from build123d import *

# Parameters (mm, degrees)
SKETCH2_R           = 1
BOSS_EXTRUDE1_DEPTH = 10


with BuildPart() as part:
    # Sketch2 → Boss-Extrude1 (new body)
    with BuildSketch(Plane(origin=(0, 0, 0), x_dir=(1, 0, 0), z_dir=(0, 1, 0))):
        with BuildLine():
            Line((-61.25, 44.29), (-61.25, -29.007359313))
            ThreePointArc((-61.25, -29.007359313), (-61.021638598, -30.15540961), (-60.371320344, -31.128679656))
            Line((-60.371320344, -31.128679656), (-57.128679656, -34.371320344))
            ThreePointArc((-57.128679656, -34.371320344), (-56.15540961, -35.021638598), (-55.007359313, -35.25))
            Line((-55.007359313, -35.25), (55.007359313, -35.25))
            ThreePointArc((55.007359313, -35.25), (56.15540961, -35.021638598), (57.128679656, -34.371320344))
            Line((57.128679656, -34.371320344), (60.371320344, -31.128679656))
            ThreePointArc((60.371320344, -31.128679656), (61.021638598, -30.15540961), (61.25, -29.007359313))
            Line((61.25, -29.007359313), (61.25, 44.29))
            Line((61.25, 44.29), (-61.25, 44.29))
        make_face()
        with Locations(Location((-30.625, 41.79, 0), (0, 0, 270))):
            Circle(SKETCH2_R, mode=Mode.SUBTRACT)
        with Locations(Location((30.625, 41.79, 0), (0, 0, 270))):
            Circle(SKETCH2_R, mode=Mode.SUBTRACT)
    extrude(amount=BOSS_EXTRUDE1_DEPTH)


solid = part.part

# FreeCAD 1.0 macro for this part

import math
import FreeCAD as App
import Part
import Sketcher
Q = App.Units.Quantity

doc = App.newDocument("Part")
body = doc.addObject("PartDesign::Body", "Body")

# Sketch on XZ plane
sketch1 = body.newObject("Sketcher::SketchObject", "Sketch")
sketch1.AttachmentSupport = (doc.getObject("XZ_Plane"), [""])
sketch1.MapMode = "FlatFace"
sketch1.addGeometry([
    Part.LineSegment(App.Vector(-61.2, -44.3, 0), App.Vector(-61.2, 29, 0)),  # 0
    Part.ArcOfCircle(Part.Circle(App.Vector(-58.3, 29, 0), App.Vector(0, 0, 1), 3), math.radians(135), math.radians(180)),  # 1
    Part.LineSegment(App.Vector(-60.4, 31.1, 0), App.Vector(-57.1, 34.4, 0)),  # 2
    Part.ArcOfCircle(Part.Circle(App.Vector(-55, 32.3, 0), App.Vector(0, 0, 1), 3), math.radians(90), math.radians(135)),  # 3
    Part.LineSegment(App.Vector(-55, 35.2, 0), App.Vector(55, 35.2, 0)),  # 4
    Part.ArcOfCircle(Part.Circle(App.Vector(55, 32.3, 0), App.Vector(0, 0, 1), 3), math.radians(45), math.radians(90)),  # 5
    Part.LineSegment(App.Vector(57.1, 34.4, 0), App.Vector(60.4, 31.1, 0)),  # 6
    Part.ArcOfCircle(Part.Circle(App.Vector(58.3, 29, 0), App.Vector(0, 0, 1), 3), math.radians(0), math.radians(45)),  # 7
    Part.LineSegment(App.Vector(61.2, 29, 0), App.Vector(61.2, -44.3, 0)),  # 8
    Part.LineSegment(App.Vector(61.2, -44.3, 0), App.Vector(-61.2, -44.3, 0)),  # 9
    Part.Circle(App.Vector(-30.6, -41.8, 0), App.Vector(0, 0, 1), 1),  # 10
    Part.Circle(App.Vector(30.6, -41.8, 0), App.Vector(0, 0, 1), 1),  # 11
], False)
sketch1.addConstraint([
    Sketcher.Constraint("Tangent", 0, 2, 1, 2),
    Sketcher.Constraint("Tangent", 1, 1, 2, 1),
    Sketcher.Constraint("Tangent", 2, 2, 3, 2),
    Sketcher.Constraint("Tangent", 3, 1, 4, 1),
    Sketcher.Constraint("Tangent", 4, 2, 5, 2),
    Sketcher.Constraint("Tangent", 5, 1, 6, 1),
    Sketcher.Constraint("Tangent", 6, 2, 7, 2),
    Sketcher.Constraint("Tangent", 7, 1, 8, 1),
    Sketcher.Constraint("Coincident", 8, 2, 9, 1),
    Sketcher.Constraint("Coincident", 9, 2, 0, 1),
    Sketcher.Constraint("Vertical", 0),
    Sketcher.Constraint("Horizontal", 4),
    Sketcher.Constraint("Vertical", 8),
    Sketcher.Constraint("Horizontal", 9),
    Sketcher.Constraint("Equal", 1, 3),
    Sketcher.Constraint("Equal", 3, 5),
    Sketcher.Constraint("Equal", 5, 7),
    Sketcher.Constraint("Equal", 10, 11),
    Sketcher.Constraint("Symmetric", 1, 3, 7, 3, -2),
    Sketcher.Constraint("Symmetric", 10, 3, 11, 3, -2),
    Sketcher.Constraint("Perpendicular", 2, 6),
    Sketcher.Constraint("Horizontal", 2, 2, 5, 1),
    Sketcher.Constraint("Diameter", 10, Q("2 mm")),
    Sketcher.Constraint("Radius", 1, Q("3 mm")),
    Sketcher.Constraint("DistanceX", 9, 2, 9, 1, Q("122.5 mm")),
    Sketcher.Constraint("DistanceY", 8, 2, 11, 3, Q("2.5 mm")),
    Sketcher.Constraint("DistanceY", -1, 1, 3, 3, Q("32.25 mm")),
    Sketcher.Constraint("DistanceY", 10, 3, -1, 1, Q("41.79 mm")),
    Sketcher.Constraint("DistanceX", 10, 3, 11, 3, Q("61.25 mm")),
    Sketcher.Constraint("DistanceX", 4, 1, 4, 2, Q("110.014719 mm")),
])
pad1 = body.newObject("PartDesign::Pad", "Pad")
pad1.Profile = sketch1
pad1.Length = 10
pad1.Reversed = True

doc.recompute()
